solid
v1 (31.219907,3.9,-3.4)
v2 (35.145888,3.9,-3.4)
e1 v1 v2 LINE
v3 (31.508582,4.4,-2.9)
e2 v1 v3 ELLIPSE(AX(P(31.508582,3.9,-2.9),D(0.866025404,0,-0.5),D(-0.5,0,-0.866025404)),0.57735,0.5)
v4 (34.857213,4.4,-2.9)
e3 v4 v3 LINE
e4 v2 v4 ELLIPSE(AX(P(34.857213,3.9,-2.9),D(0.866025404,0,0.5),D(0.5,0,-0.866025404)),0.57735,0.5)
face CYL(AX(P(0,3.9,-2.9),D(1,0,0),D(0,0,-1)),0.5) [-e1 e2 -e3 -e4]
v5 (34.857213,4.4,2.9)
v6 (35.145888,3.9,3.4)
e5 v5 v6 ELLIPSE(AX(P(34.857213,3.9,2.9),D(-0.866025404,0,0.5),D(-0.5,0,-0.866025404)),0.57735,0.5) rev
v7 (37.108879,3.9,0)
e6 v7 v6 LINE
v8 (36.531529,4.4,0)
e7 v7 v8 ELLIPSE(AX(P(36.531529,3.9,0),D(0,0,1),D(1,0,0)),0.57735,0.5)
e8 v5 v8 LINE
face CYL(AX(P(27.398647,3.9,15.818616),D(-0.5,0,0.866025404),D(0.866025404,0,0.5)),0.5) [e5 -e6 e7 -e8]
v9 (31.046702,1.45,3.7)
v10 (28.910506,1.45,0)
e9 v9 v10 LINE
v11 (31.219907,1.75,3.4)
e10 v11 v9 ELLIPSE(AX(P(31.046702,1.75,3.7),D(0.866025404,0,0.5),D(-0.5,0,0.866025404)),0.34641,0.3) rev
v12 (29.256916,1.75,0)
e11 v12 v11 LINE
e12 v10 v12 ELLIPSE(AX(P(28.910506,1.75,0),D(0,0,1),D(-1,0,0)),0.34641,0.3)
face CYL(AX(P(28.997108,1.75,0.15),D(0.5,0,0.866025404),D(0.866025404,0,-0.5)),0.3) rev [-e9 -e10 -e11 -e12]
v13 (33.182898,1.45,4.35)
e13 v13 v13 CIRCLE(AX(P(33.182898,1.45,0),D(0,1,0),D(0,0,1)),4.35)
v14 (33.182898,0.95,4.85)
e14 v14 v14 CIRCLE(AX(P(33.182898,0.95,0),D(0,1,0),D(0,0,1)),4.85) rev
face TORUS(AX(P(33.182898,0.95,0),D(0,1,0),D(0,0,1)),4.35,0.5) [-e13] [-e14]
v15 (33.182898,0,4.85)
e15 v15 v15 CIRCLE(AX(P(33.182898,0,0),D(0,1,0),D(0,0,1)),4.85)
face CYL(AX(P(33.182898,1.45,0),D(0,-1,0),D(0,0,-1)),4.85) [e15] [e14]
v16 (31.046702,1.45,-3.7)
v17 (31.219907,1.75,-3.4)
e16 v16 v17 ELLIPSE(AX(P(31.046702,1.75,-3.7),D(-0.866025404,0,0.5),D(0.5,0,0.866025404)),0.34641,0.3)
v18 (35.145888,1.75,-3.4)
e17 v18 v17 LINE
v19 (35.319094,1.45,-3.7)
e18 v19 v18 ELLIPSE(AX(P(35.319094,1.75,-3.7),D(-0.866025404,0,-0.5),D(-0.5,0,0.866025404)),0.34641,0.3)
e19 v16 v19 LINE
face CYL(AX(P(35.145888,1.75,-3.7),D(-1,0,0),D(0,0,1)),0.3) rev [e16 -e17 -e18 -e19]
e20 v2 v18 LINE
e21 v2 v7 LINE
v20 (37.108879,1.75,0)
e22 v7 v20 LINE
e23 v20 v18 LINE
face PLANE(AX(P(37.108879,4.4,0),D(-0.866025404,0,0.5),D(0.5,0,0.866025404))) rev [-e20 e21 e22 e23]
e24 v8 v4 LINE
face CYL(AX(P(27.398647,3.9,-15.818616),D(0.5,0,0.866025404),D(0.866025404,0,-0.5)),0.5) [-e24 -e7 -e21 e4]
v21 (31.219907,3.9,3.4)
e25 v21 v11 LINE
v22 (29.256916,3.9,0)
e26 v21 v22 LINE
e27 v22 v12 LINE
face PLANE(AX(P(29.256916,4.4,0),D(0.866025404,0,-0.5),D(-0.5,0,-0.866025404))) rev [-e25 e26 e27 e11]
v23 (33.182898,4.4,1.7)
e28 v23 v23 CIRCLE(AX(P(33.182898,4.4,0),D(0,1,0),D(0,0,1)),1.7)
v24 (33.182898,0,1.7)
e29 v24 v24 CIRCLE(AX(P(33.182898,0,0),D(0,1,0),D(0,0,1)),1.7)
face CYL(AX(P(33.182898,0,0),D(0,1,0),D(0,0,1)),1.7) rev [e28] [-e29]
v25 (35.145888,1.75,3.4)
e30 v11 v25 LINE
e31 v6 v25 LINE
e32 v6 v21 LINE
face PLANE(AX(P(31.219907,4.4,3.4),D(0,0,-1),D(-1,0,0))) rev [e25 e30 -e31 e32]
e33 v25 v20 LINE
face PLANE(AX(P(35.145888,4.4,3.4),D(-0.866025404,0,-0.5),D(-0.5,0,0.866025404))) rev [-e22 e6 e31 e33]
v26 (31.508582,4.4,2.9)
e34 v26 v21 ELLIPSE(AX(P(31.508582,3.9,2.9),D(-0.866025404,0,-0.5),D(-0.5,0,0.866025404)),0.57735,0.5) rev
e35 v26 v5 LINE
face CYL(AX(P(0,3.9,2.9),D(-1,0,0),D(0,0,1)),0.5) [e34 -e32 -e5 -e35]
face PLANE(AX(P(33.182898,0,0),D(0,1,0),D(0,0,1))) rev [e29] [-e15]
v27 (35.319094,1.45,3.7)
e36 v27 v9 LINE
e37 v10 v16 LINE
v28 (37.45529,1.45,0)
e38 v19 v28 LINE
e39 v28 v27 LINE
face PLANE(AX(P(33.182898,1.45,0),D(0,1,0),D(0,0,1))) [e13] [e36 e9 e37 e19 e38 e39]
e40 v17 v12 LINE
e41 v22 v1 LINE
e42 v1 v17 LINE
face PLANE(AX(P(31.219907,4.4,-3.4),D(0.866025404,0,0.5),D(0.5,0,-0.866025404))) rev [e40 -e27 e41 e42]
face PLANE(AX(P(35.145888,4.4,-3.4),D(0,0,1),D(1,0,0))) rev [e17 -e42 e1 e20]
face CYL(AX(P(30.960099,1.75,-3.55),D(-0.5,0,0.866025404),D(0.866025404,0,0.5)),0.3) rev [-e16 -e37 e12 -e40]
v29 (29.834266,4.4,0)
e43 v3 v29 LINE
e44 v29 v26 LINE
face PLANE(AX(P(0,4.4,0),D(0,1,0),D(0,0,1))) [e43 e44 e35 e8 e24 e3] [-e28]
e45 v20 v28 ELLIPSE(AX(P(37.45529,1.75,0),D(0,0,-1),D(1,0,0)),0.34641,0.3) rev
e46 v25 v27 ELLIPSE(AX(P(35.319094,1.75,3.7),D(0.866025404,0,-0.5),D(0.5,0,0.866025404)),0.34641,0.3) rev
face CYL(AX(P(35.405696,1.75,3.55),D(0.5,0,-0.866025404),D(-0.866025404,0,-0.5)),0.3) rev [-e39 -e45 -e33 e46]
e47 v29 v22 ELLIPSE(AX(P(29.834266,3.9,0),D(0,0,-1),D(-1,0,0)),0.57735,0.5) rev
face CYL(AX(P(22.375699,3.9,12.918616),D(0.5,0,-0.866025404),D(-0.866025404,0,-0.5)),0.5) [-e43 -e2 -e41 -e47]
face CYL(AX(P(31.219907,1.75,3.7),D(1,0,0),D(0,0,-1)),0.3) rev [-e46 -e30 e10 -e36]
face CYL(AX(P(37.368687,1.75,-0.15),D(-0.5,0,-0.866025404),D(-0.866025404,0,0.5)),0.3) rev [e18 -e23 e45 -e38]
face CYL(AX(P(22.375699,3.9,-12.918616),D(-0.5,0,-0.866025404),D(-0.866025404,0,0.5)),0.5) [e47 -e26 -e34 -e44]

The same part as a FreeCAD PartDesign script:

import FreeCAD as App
import Part
import Sketcher

V = App.Vector
Q = App.Units.Quantity


def edges_at(feature, points):
    """Names of the edges that pass closest to the given points."""
    edges = feature.Shape.Edges
    near = lambda p: min(range(len(edges)), key=lambda i: edges[i].distToShape(Part.Vertex(*p))[0])
    return sorted({f"Edge{near(p) + 1}" for p in points})

doc = App.newDocument("Part")
body = doc.addObject("PartDesign::Body", "Body")

sketch1 = body.newObject("Sketcher::SketchObject", "Sketch")
sketch1.AttachmentSupport = (doc.getObject("XZ_Plane"), [""])
sketch1.MapMode = "FlatFace"
sketch1.addGeometry(Part.Circle(V(33.182898, 0, 0), V(0, 0, 1), 4.85), False)
sketch1.addConstraint(Sketcher.Constraint("PointOnObject", 0, 3, -1))
sketch1.addConstraint(Sketcher.Constraint("Diameter", 0, 9.7))
sketch1.addConstraint(Sketcher.Constraint("DistanceX", -1, 1, 0, 3, 33.182898))
pad1 = body.newObject("PartDesign::Pad", "Pad")
pad1.Profile = sketch1
pad1.Length = 1.45
pad1.Reversed = True

sketch2 = body.newObject("Sketcher::SketchObject", "Sketch001")
sketch2.AttachmentSupport = (doc.getObject("XZ_Plane"), [""])
sketch2.MapMode = "FlatFace"
sketch2.AttachmentOffset = App.Placement(V(0, 0, -1.45), App.Rotation())
sketch2.addGeometry(Part.LineSegment(V(37.108879, 0, 0), V(35.145888, -3.4, 0)), False)
sketch2.addGeometry(Part.LineSegment(V(35.145888, -3.4, 0), V(31.219907, -3.4, 0)), False)
sketch2.addGeometry(Part.LineSegment(V(31.219907, -3.4, 0), V(29.256916, 0, 0)), False)
sketch2.addGeometry(Part.LineSegment(V(29.256916, 0, 0), V(31.219907, 3.4, 0)), False)
sketch2.addGeometry(Part.LineSegment(V(31.219907, 3.4, 0), V(35.145888, 3.4, 0)), False)
sketch2.addGeometry(Part.LineSegment(V(35.145888, 3.4, 0), V(37.108879, 0, 0)), False)
sketch2.addConstraint(Sketcher.Constraint("Coincident", 0, 2, 1, 1))
sketch2.addConstraint(Sketcher.Constraint("Coincident", 1, 2, 2, 1))
sketch2.addConstraint(Sketcher.Constraint("Coincident", 2, 2, 3, 1))
sketch2.addConstraint(Sketcher.Constraint("Coincident", 3, 2, 4, 1))
sketch2.addConstraint(Sketcher.Constraint("Coincident", 4, 2, 5, 1))
sketch2.addConstraint(Sketcher.Constraint("Coincident", 5, 2, 0, 1))
sketch2.addConstraint(Sketcher.Constraint("Horizontal", 1))
sketch2.addConstraint(Sketcher.Constraint("Horizontal", 4))
sketch2.addConstraint(Sketcher.Constraint("Symmetric", 1, 2, 3, 2, -1))
sketch2.addConstraint(Sketcher.Constraint("PointOnObject", 2, 2, -1))
sketch2.addConstraint(Sketcher.Constraint("PointOnObject", 5, 2, -1))
sketch2.addConstraint(Sketcher.Constraint("Parallel", 0, 3))
sketch2.addConstraint(Sketcher.Constraint("Parallel", 2, 5))
sketch2.addConstraint(Sketcher.Constraint("Angle", 0, Q("-120 deg")))
sketch2.addConstraint(Sketcher.Constraint("DistanceY", 0, 2, -1, 1, 3.4))
sketch2.addConstraint(Sketcher.Constraint("DistanceX", 1, 2, 1, 1, 3.925982))
sketch2.addConstraint(Sketcher.Constraint("DistanceX", -1, 1, 0, 2, 35.145888))
pad2 = body.newObject("PartDesign::Pad", "Pad001")
pad2.Profile = sketch2
pad2.Length = 2.95
pad2.Reversed = True

sketch3 = body.newObject("Sketcher::SketchObject", "Sketch002")
sketch3.AttachmentSupport = (doc.getObject("XZ_Plane"), [""])
sketch3.MapMode = "FlatFace"
sketch3.AttachmentOffset = App.Placement(V(0, 0, -4.4), App.Rotation())
sketch3.addGeometry(Part.Circle(V(33.182898, 0, 0), V(0, 0, 1), 1.7), False)
sketch3.addConstraint(Sketcher.Constraint("PointOnObject", 0, 3, -1))
sketch3.addConstraint(Sketcher.Constraint("Diameter", 0, 3.4))
sketch3.addConstraint(Sketcher.Constraint("DistanceX", -1, 1, 0, 3, 33.182898))
pocket1 = body.newObject("PartDesign::Pocket", "Pocket")
pocket1.Profile = sketch3
pocket1.Type = "ThroughAll"
pocket1.Reversed = True
doc.recompute()

fillet = body.newObject("PartDesign::Fillet", "Fillet")
fillet.Base = (pocket1, edges_at(pocket1, [
    (36.127, 4.4, 1.7),
    (36.127, 4.4, -1.7),
    (33.183, 4.4, -3.4),
    (30.238, 4.4, -1.7),
    (30.238, 4.4, 1.7),
    (33.183, 4.4, 3.4),
]))
fillet.Radius = 0.5
doc.recompute()

fillet2 = body.newObject("PartDesign::Fillet", "Fillet001")
fillet2.Base = (fillet, edges_at(fillet, [(33.183, 1.45, -4.85)]))
fillet2.Radius = 0.5
doc.recompute()

fillet3 = body.newObject("PartDesign::Fillet", "Fillet002")
fillet3.Base = (fillet2, edges_at(fillet2, [
    (36.127, 1.45, 1.7),
    (36.127, 1.45, -1.7),
    (33.183, 1.45, -3.4),
    (30.238, 1.45, -1.7),
    (30.238, 1.45, 1.7),
    (33.183, 1.45, 3.4),
]))
fillet3.Radius = 0.3

doc.recompute()
